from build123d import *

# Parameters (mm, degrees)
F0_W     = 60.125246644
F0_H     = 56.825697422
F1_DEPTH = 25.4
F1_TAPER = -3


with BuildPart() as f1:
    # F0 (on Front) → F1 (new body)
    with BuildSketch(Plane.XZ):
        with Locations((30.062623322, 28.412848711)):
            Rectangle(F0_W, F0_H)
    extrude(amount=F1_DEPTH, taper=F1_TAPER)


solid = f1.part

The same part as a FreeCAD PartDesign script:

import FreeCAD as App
import Part
import Sketcher

V = App.Vector
Q = App.Units.Quantity

doc = App.newDocument("Part")
body = doc.addObject("PartDesign::Body", "Body")

# Sketch on XZ plane
sketch1 = body.newObject("Sketcher::SketchObject", "Sketch")
sketch1.AttachmentSupport = (doc.getObject("XZ_Plane"), [""])
sketch1.MapMode = "FlatFace"
sketch1.addGeometry([
    Part.LineSegment(V(0, 56.825697, 0), V(0, 0, 0)),
    Part.LineSegment(V(0, 0, 0), V(60.125247, 0, 0)),
    Part.LineSegment(V(60.125247, 0, 0), V(60.125247, 56.825697, 0)),
    Part.LineSegment(V(60.125247, 56.825697, 0), V(0, 56.825697, 0)),
], False)
sketch1.addConstraint([
    Sketcher.Constraint("Coincident", 0, 2, 1, 1),
    Sketcher.Constraint("Coincident", 1, 2, 2, 1),
    Sketcher.Constraint("Coincident", 2, 2, 3, 1),
    Sketcher.Constraint("Coincident", 3, 2, 0, 1),
    Sketcher.Constraint("Vertical", 0),
    Sketcher.Constraint("Horizontal", 1),
    Sketcher.Constraint("Vertical", 2),
    Sketcher.Constraint("Horizontal", 3),
    Sketcher.Constraint("Coincident", 0, 2, -1, 1),
    Sketcher.Constraint("DistanceX", 1, 1, 1, 2, 60.125247),
    Sketcher.Constraint("DistanceY", 0, 2, 0, 1, 56.825697),
])
pad1 = body.newObject("PartDesign::Pad", "Pad")
pad1.Profile = sketch1
pad1.Length = Q("1 in")
pad1.TaperAngle = 3

doc.recompute()
